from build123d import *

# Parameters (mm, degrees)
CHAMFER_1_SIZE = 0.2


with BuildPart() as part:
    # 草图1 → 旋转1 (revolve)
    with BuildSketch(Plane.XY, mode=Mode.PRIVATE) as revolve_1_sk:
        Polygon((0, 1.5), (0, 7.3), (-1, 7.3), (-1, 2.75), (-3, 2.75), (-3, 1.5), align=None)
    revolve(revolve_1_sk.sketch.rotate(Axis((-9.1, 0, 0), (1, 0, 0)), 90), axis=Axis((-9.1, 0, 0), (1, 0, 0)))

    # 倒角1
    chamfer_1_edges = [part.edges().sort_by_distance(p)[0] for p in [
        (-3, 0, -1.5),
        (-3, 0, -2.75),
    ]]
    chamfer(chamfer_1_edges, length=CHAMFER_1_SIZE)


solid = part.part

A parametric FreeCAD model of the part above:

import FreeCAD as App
import Part
import Sketcher
from FreeCAD import Vector


def edges_at(feature, points):
    """Names of the edges that pass closest to the given points."""
    edges = feature.Shape.Edges
    near = lambda p: min(range(len(edges)), key=lambda i: edges[i].distToShape(Part.Vertex(*p))[0])
    return sorted({f"Edge{near(p) + 1}" for p in points})


def add_polygon(sketch, points):
    """Adds a closed chain of lines whose ends are joined by coincident constraints."""
    first, n = sketch.GeometryCount, len(points)
    for a, b in zip(points, points[1:] + points[:1]):
        sketch.addGeometry(Part.LineSegment(App.Vector(*a, 0), App.Vector(*b, 0)), False)
    for i in range(n):
        sketch.addConstraint(Sketcher.Constraint("Coincident", first + i, 2, first + (i + 1) % n, 1))

doc = App.newDocument("Part")
params = doc.addObject("Spreadsheet::Sheet", "Params")
for row, (alias, value) in enumerate([
    ("sketch1_width", "1 mm"),
    ("sketch1_width2", "2 mm"),
    ("sketch1_height", "5.8 mm"),
    ("sketch1_height2", "4.55 mm"),
    ("revolution_angle", "360 deg"),
    ("chamfer_size", "0.2 mm"),
], start=1):
    params.set(f"A{row}", alias)
    params.set(f"B{row}", "=" + value)
    params.setAlias(f"B{row}", alias)

body = doc.addObject("PartDesign::Body", "Body")

# Sketch on XY plane
sketch1 = body.newObject("Sketcher::SketchObject", "Sketch")
sketch1.AttachmentSupport = (doc.getObject("XY_Plane"), [""])
sketch1.MapMode = "FlatFace"
add_polygon(sketch1, [(0, 1.5), (0, 7.3), (-1, 7.3), (-1, 2.8), (-3, 2.8), (-3, 1.5)])  # lines 0-5
sketch1.addConstraint([
    Sketcher.Constraint("Vertical", 0),
    Sketcher.Constraint("Horizontal", 1),
    Sketcher.Constraint("Vertical", 2),
    Sketcher.Constraint("Horizontal", 3),
    Sketcher.Constraint("Vertical", 4),
    Sketcher.Constraint("Horizontal", 5),
    Sketcher.Constraint("PointOnObject", 0, 2, -2),
    Sketcher.Constraint("DistanceX", 1, 2, 1, 1, 1.0),
    Sketcher.Constraint("DistanceX", 3, 2, 3, 1, 2.0),
    Sketcher.Constraint("DistanceY", 0, 1, 0, 2, 5.8),
    Sketcher.Constraint("DistanceY", 2, 2, 2, 1, 4.55),
    Sketcher.Constraint("DistanceY", -1, 1, 0, 2, 7.3),
])
sketch1.setExpression("Constraints[13]", "Params.sketch1_width")
sketch1.setExpression("Constraints[14]", "Params.sketch1_width2")
sketch1.setExpression("Constraints[15]", "Params.sketch1_height")
sketch1.setExpression("Constraints[16]", "Params.sketch1_height2")
revolution = body.newObject("PartDesign::Revolution", "Revolution")
revolution.Profile = sketch1
revolution.ReferenceAxis = (sketch1, ["H_Axis"])
revolution.setExpression("Angle", "Params.revolution_angle")
doc.recompute()

chamfer = body.newObject("PartDesign::Chamfer", "Chamfer")
chamfer.Base = (revolution, edges_at(revolution, [(-3, 0, -1.5), (-3, 0, -2.75)]))
chamfer.setExpression("Size", "Params.chamfer_size")

doc.recompute()
